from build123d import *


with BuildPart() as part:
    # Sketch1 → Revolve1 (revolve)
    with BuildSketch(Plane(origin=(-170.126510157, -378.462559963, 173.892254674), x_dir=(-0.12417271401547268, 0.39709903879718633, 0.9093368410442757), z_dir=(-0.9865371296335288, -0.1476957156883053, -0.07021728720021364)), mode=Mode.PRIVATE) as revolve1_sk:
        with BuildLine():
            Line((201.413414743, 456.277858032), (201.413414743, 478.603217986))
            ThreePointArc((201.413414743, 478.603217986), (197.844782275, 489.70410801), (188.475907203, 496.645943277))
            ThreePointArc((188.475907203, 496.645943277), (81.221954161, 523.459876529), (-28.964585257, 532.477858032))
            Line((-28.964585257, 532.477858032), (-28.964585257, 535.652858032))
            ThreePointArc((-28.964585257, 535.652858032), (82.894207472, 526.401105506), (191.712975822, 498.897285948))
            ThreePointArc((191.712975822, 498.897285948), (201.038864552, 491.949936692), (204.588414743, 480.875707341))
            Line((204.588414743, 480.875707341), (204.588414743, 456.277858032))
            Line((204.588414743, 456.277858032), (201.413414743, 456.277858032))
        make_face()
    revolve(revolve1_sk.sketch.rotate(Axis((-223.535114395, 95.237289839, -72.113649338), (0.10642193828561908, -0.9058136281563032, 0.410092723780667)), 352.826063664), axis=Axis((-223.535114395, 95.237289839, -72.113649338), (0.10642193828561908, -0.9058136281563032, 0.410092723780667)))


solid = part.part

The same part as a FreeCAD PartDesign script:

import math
import FreeCAD as App
import Part
import Sketcher
from FreeCAD import Vector
Q = App.Units.Quantity

doc = App.newDocument("Part")
body = doc.addObject("PartDesign::Body", "Body")

# Sketch on an angled plane
sketch1 = doc.addObject("Sketcher::SketchObject", "Sketch")
body.addObject(sketch1)
sketch1.Placement = App.Placement(Vector(-170.12651, -378.46256, 173.892255), App.Rotation(Vector(-0.124172714, 0.397099039, 0.909336841), Vector(-0.106421939, 0.905813628, -0.410092724), Vector(-0.98653713, -0.147695716, -0.070217287), "ZXY"))
sketch1.addGeometry([
    Part.LineSegment(Vector(201.4, 478.6, 0), Vector(201.4, 456.3, 0)),  # 0
    Part.LineSegment(Vector(201.4, 456.3, 0), Vector(204.6, 456.3, 0)),  # 1
    Part.LineSegment(Vector(204.6, 456.3, 0), Vector(204.6, 480.9, 0)),  # 2
    Part.ArcOfCircle(Part.Circle(Vector(185.5, 480.9, 0), Vector(0, 0, 1), 19.1), math.radians(0), math.radians(71)),  # 3
    Part.ArcOfCircle(Part.Circle(Vector(-29, -145.2, 0), Vector(0, 0, 1), 680.8), math.radians(71.09), math.radians(90)),  # 4
    Part.LineSegment(Vector(-29, 535.7, 0), Vector(-29, 532.5, 0)),  # 5
    Part.ArcOfCircle(Part.Circle(Vector(-29, -145.2, 0), Vector(0, 0, 1), 677.7), math.radians(71.28), math.radians(90)),  # 6
    Part.ArcOfCircle(Part.Circle(Vector(182.4, 478.6, 0), Vector(0, 0, 1), 19.1), math.radians(0), math.radians(71)),  # 7
], False)
sketch1.addGeometry(Part.LineSegment(Vector(-29, 535.7, 0), Vector(-29, -145.2, 0)), True)  # axis
sketch1.addConstraint([
    Sketcher.Constraint("Coincident", 0, 2, 1, 1),
    Sketcher.Constraint("Coincident", 1, 2, 2, 1),
    Sketcher.Constraint("Tangent", 2, 2, 3, 1),
    Sketcher.Constraint("Tangent", 3, 2, 4, 1),
    Sketcher.Constraint("Coincident", 4, 2, 5, 1),
    Sketcher.Constraint("Coincident", 5, 2, 6, 2),
    Sketcher.Constraint("Tangent", 6, 1, 7, 2),
    Sketcher.Constraint("Tangent", 7, 1, 0, 1),
    Sketcher.Constraint("Vertical", 0),
    Sketcher.Constraint("Horizontal", 1),
    Sketcher.Constraint("Vertical", 2),
    Sketcher.Constraint("Vertical", 5),
    Sketcher.Constraint("Vertical", 8),
    Sketcher.Constraint("Coincident", 6, 3, 4, 3),
    Sketcher.Constraint("Coincident", 8, 2, 4, 3),
    Sketcher.Constraint("Equal", 3, 7),
    Sketcher.Constraint("Vertical", 5, 2, 8, 1),
    Sketcher.Constraint("Equal", 1, 5),
    Sketcher.Constraint("Radius", 3, Q("0.75 in")),
    Sketcher.Constraint("DistanceX", 1, 1, 1, 2, Q("0.125 in")),
    Sketcher.Constraint("DistanceX", 4, 3, 7, 3, Q("8.32 in")),
    Sketcher.Constraint("DistanceY", 0, 2, 4, 2, Q("3.125 in")),
    Sketcher.Constraint("DistanceY", 5, 2, 8, 1, Q("0.125 in")),
    Sketcher.Constraint("Radius", 4, Q("680.843138 mm")),
    Sketcher.Constraint("DistanceY", 4, 3, -1, 1, Q("145.19028 mm")),
    Sketcher.Constraint("DistanceX", -1, 1, 3, 3, Q("185.538415 mm")),
])
revolution = doc.addObject("PartDesign::Revolution", "Revolution")
body.addObject(revolution)
revolution.Profile = sketch1
revolution.ReferenceAxis = (sketch1, ["Axis0"])
revolution.Angle = 360

doc.recompute()
